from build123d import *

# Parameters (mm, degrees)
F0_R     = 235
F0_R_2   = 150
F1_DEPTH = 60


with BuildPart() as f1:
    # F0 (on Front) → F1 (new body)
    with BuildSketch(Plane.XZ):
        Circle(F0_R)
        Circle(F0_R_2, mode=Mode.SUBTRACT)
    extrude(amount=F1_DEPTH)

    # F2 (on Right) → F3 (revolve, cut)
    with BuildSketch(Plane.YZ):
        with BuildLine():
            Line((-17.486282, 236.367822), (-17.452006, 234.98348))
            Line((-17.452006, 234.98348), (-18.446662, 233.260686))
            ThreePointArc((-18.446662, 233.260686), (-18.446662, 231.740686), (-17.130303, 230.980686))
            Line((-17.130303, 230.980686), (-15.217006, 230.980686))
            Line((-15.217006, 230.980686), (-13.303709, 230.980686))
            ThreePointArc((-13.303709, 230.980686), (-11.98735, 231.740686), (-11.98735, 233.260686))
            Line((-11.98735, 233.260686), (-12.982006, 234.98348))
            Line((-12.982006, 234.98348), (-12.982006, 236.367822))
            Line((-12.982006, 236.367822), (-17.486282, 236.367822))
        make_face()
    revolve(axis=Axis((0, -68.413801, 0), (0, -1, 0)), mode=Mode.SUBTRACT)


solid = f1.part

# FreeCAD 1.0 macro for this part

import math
import FreeCAD as App
import Part
import Sketcher
from FreeCAD import Vector
Q = App.Units.Quantity

doc = App.newDocument("Part")
body = doc.addObject("PartDesign::Body", "Body")

sketch1 = body.newObject("Sketcher::SketchObject", "Sketch")
sketch1.AttachmentSupport = (doc.getObject("XZ_Plane"), [""])
sketch1.MapMode = "FlatFace"
sketch1.addGeometry([
    Part.Circle(Vector(0, 0, 0), Vector(0, 0, 1), 235),
    Part.Circle(Vector(0, 0, 0), Vector(0, 0, 1), 150),
], False)
sketch1.addConstraint([
    Sketcher.Constraint("Coincident", 0, 3, -1, 1),
    Sketcher.Constraint("Coincident", 1, 3, -1, 1),
    Sketcher.Constraint("Diameter", 0, 470.0),
    Sketcher.Constraint("Diameter", 1, 300.0),
])
pad1 = body.newObject("PartDesign::Pad", "Pad")
pad1.Profile = sketch1
pad1.Length = 60

sketch2 = body.newObject("Sketcher::SketchObject", "Sketch001")
sketch2.AttachmentSupport = (doc.getObject("YZ_Plane"), [""])
sketch2.MapMode = "FlatFace"
sketch2.addGeometry([
    Part.LineSegment(Vector(-17.5, 236.4, 0), Vector(-17.5, 235, 0)),
    Part.LineSegment(Vector(-17.5, 235, 0), Vector(-18.4, 233.3, 0)),
    Part.ArcOfCircle(Part.Circle(Vector(-17.1, 232.5, 0), Vector(0, 0, 1), 1.5), math.radians(150), math.radians(270)),
    Part.LineSegment(Vector(-17.1, 231, 0), Vector(-13.3, 231, 0)),
    Part.ArcOfCircle(Part.Circle(Vector(-13.3, 232.5, 0), Vector(0, 0, 1), 1.5), math.radians(-90), math.radians(30)),
    Part.LineSegment(Vector(-12, 233.3, 0), Vector(-13, 235, 0)),
    Part.LineSegment(Vector(-13, 235, 0), Vector(-13, 236.4, 0)),
    Part.LineSegment(Vector(-13, 236.4, 0), Vector(-17.5, 236.4, 0)),
], False)
sketch2.addConstraint([
    Sketcher.Constraint("Coincident", 0, 2, 1, 1),
    Sketcher.Constraint("Tangent", 1, 2, 2, 1),
    Sketcher.Constraint("Tangent", 2, 2, 3, 1),
    Sketcher.Constraint("Tangent", 3, 2, 4, 1),
    Sketcher.Constraint("Tangent", 4, 2, 5, 1),
    Sketcher.Constraint("Coincident", 5, 2, 6, 1),
    Sketcher.Constraint("Coincident", 6, 2, 7, 1),
    Sketcher.Constraint("Coincident", 7, 2, 0, 1),
    Sketcher.Constraint("Horizontal", 3),
    Sketcher.Constraint("Vertical", 6),
    Sketcher.Constraint("Horizontal", 7),
    Sketcher.Constraint("Equal", 2, 4),
    Sketcher.Constraint("Horizontal", 1, 2, 4, 2),
    Sketcher.Constraint("Horizontal", 0, 2, 5, 2),
    Sketcher.Constraint("Angle", 1, Q("-120.00001 deg")),
    Sketcher.Constraint("Radius", 2, 1.52),
    Sketcher.Constraint("DistanceX", 0, 2, 5, 2, 4.47),
    Sketcher.Constraint("Distance", 1, 1.989311),
    Sketcher.Constraint("DistanceX", 7, 2, 7, 1, 4.504276),
    Sketcher.Constraint("DistanceY", 6, 1, 6, 2, 1.384342),
    Sketcher.Constraint("DistanceX", 4, 3, -1, 1, 13.303709),
    Sketcher.Constraint("DistanceY", -1, 1, 0, 2, 234.98348),
])
groove = body.newObject("PartDesign::Groove", "Groove")
groove.Profile = sketch2
groove.ReferenceAxis = (sketch2, ["H_Axis"])
groove.Angle = 360

doc.recompute()
